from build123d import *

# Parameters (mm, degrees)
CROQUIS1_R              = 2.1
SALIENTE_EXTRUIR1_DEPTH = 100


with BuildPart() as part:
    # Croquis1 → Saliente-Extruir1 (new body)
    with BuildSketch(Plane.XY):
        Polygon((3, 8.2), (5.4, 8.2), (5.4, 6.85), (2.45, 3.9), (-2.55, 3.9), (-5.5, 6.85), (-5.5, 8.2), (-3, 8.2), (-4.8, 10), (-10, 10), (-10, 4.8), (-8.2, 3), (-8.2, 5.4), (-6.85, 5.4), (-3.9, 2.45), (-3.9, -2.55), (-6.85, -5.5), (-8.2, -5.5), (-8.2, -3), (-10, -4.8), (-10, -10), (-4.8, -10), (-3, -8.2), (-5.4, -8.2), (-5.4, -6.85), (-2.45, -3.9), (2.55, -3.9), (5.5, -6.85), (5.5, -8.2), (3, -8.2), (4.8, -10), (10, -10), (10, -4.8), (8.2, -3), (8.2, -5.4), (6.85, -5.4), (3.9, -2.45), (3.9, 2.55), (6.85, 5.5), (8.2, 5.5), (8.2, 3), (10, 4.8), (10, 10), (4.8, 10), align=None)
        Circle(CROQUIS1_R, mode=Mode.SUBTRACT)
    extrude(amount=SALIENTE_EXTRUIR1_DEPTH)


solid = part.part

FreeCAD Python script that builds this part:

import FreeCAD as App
import Part
import Sketcher


def add_polygon(sketch, points):
    """Adds a closed chain of lines whose ends are joined by coincident constraints."""
    first, n = sketch.GeometryCount, len(points)
    for a, b in zip(points, points[1:] + points[:1]):
        sketch.addGeometry(Part.LineSegment(App.Vector(*a, 0), App.Vector(*b, 0)), False)
    for i in range(n):
        sketch.addConstraint(Sketcher.Constraint("Coincident", first + i, 2, first + (i + 1) % n, 1))

doc = App.newDocument("Part")
body = doc.addObject("PartDesign::Body", "Body")

# Sketch on XY plane
sketch1 = body.newObject("Sketcher::SketchObject", "Sketch")
sketch1.AttachmentSupport = (doc.getObject("XY_Plane"), [""])
sketch1.MapMode = "FlatFace"
add_polygon(sketch1, [(3, 8.2), (5.4, 8.2), (5.4, 6.85), (2.45, 3.9), (-2.55, 3.9), (-5.5, 6.85), (-5.5, 8.2), (-3, 8.2), (-4.8, 10), (-10, 10), (-10, 4.8), (-8.2, 3), (-8.2, 5.4), (-6.85, 5.4), (-3.9, 2.45), (-3.9, -2.55), (-6.85, -5.5), (-8.2, -5.5), (-8.2, -3), (-10, -4.8), (-10, -10), (-4.8, -10), (-3, -8.2), (-5.4, -8.2), (-5.4, -6.85), (-2.45, -3.9), (2.55, -3.9), (5.5, -6.85), (5.5, -8.2), (3, -8.2), (4.8, -10), (10, -10), (10, -4.8), (8.2, -3), (8.2, -5.4), (6.85, -5.4), (3.9, -2.45), (3.9, 2.55), (6.85, 5.5), (8.2, 5.5), (8.2, 3), (10, 4.8), (10, 10), (4.8, 10)])  # lines 0-43
sketch1.addGeometry(Part.Circle(App.Vector(0, 0, 0), App.Vector(0, 0, 1), 2.1), False)  # 44
sketch1.addConstraint(Sketcher.Constraint("Horizontal", 0))
sketch1.addConstraint(Sketcher.Constraint("Vertical", 1))
sketch1.addConstraint(Sketcher.Constraint("Horizontal", 3))
sketch1.addConstraint(Sketcher.Constraint("Vertical", 5))
sketch1.addConstraint(Sketcher.Constraint("Horizontal", 6))
sketch1.addConstraint(Sketcher.Constraint("Horizontal", 8))
sketch1.addConstraint(Sketcher.Constraint("Vertical", 9))
sketch1.addConstraint(Sketcher.Constraint("Vertical", 11))
sketch1.addConstraint(Sketcher.Constraint("Horizontal", 12))
sketch1.addConstraint(Sketcher.Constraint("Vertical", 14))
sketch1.addConstraint(Sketcher.Constraint("Horizontal", 16))
sketch1.addConstraint(Sketcher.Constraint("Vertical", 17))
sketch1.addConstraint(Sketcher.Constraint("Vertical", 19))
sketch1.addConstraint(Sketcher.Constraint("Horizontal", 20))
sketch1.addConstraint(Sketcher.Constraint("Horizontal", 22))
sketch1.addConstraint(Sketcher.Constraint("Vertical", 23))
sketch1.addConstraint(Sketcher.Constraint("Horizontal", 25))
sketch1.addConstraint(Sketcher.Constraint("Vertical", 27))
sketch1.addConstraint(Sketcher.Constraint("Horizontal", 28))
sketch1.addConstraint(Sketcher.Constraint("Horizontal", 30))
sketch1.addConstraint(Sketcher.Constraint("Vertical", 31))
sketch1.addConstraint(Sketcher.Constraint("Vertical", 33))
sketch1.addConstraint(Sketcher.Constraint("Horizontal", 34))
sketch1.addConstraint(Sketcher.Constraint("Vertical", 36))
sketch1.addConstraint(Sketcher.Constraint("Horizontal", 38))
sketch1.addConstraint(Sketcher.Constraint("Vertical", 39))
sketch1.addConstraint(Sketcher.Constraint("Vertical", 41))
sketch1.addConstraint(Sketcher.Constraint("Horizontal", 42))
sketch1.addConstraint(Sketcher.Constraint("Coincident", 44, 3, -1, 1))
sketch1.addConstraint(Sketcher.Constraint("Symmetric", 0, 2, 22, 2, -1, 1))
sketch1.addConstraint(Sketcher.Constraint("Symmetric", 2, 2, 24, 2, -1, 1))
sketch1.addConstraint(Sketcher.Constraint("Symmetric", 4, 2, 26, 2, -1, 1))
sketch1.addConstraint(Sketcher.Constraint("Symmetric", 6, 2, 28, 2, -1, 1))
sketch1.addConstraint(Sketcher.Constraint("Symmetric", 7, 2, 29, 2, -1, 1))
sketch1.addConstraint(Sketcher.Constraint("Symmetric", 9, 2, 31, 2, -1, 1))
sketch1.addConstraint(Sketcher.Constraint("Symmetric", 10, 2, 32, 2, -1, 1))
sketch1.addConstraint(Sketcher.Constraint("Symmetric", 12, 2, 34, 2, -1, 1))
sketch1.addConstraint(Sketcher.Constraint("Symmetric", 13, 2, 35, 2, -1, 1))
sketch1.addConstraint(Sketcher.Constraint("Symmetric", 15, 2, 37, 2, -1, 1))
sketch1.addConstraint(Sketcher.Constraint("Symmetric", 17, 2, 39, 2, -1, 1))
sketch1.addConstraint(Sketcher.Constraint("Symmetric", 18, 2, 40, 2, -1, 1))
sketch1.addConstraint(Sketcher.Constraint("Symmetric", 20, 2, 42, 2, -1, 1))
sketch1.addConstraint(Sketcher.Constraint("Symmetric", 21, 2, 28, 2, -2))
sketch1.addConstraint(Sketcher.Constraint("Symmetric", 20, 2, 29, 2, -2))
sketch1.addConstraint(Sketcher.Constraint("Symmetric", 18, 2, 31, 2, -2))
sketch1.addConstraint(Sketcher.Constraint("Symmetric", 17, 2, 32, 2, -2))
sketch1.addConstraint(Sketcher.Constraint("Perpendicular", 2, 4))
sketch1.addConstraint(Sketcher.Constraint("Parallel", 4, 7))
sketch1.addConstraint(Sketcher.Constraint("Parallel", 7, 10))
sketch1.addConstraint(Sketcher.Constraint("Parallel", 10, 13))
sketch1.addConstraint(Sketcher.Constraint("Perpendicular", 13, 15))
sketch1.addConstraint(Sketcher.Constraint("Parallel", 15, 18))
sketch1.addConstraint(Sketcher.Constraint("Parallel", 21, 24))
sketch1.addConstraint(Sketcher.Constraint("Perpendicular", 24, 26))
sketch1.addConstraint(Sketcher.Constraint("Perpendicular", 35, 37))
sketch1.addConstraint(Sketcher.Constraint("Parallel", 40, 43))
sketch1.addConstraint(Sketcher.Constraint("Horizontal", 1, 2, 4, 2))
sketch1.addConstraint(Sketcher.Constraint("Vertical", 12, 2, 15, 2))
sketch1.addConstraint(Sketcher.Constraint("Equal", 38, 1))
sketch1.addConstraint(Sketcher.Constraint("Equal", 42, 9))
sketch1.addConstraint(Sketcher.Constraint("Equal", 22, 11))
sketch1.addConstraint(Sketcher.Constraint("Equal", 25, 14))
sketch1.addConstraint(Sketcher.Constraint("Equal", 28, 17))
sketch1.addConstraint(Sketcher.Constraint("Equal", 7, 10))
sketch1.addConstraint(Sketcher.Constraint("Equal", 4, 13))
sketch1.addConstraint(Sketcher.Constraint("Diameter", 44, 4.2))
sketch1.addConstraint(Sketcher.Constraint("DistanceX", 3, 2, 3, 1, 5.0))
sketch1.addConstraint(Sketcher.Constraint("DistanceX", 0, 1, 0, 2, 2.4))
sketch1.addConstraint(Sketcher.Constraint("DistanceX", 6, 1, 6, 2, 2.5))
sketch1.addConstraint(Sketcher.Constraint("DistanceX", 8, 2, 8, 1, 5.2))
sketch1.addConstraint(Sketcher.Constraint("DistanceX", 6, 2, -1, 1, 3.0))
sketch1.addConstraint(Sketcher.Constraint("DistanceY", -1, 1, 7, 2, 10.0))
sketch1.addConstraint(Sketcher.Constraint("DistanceX", 12, 1, 12, 2, 1.35))
pad1 = body.newObject("PartDesign::Pad", "Pad")
pad1.Profile = sketch1
pad1.Length = 100

doc.recompute()
